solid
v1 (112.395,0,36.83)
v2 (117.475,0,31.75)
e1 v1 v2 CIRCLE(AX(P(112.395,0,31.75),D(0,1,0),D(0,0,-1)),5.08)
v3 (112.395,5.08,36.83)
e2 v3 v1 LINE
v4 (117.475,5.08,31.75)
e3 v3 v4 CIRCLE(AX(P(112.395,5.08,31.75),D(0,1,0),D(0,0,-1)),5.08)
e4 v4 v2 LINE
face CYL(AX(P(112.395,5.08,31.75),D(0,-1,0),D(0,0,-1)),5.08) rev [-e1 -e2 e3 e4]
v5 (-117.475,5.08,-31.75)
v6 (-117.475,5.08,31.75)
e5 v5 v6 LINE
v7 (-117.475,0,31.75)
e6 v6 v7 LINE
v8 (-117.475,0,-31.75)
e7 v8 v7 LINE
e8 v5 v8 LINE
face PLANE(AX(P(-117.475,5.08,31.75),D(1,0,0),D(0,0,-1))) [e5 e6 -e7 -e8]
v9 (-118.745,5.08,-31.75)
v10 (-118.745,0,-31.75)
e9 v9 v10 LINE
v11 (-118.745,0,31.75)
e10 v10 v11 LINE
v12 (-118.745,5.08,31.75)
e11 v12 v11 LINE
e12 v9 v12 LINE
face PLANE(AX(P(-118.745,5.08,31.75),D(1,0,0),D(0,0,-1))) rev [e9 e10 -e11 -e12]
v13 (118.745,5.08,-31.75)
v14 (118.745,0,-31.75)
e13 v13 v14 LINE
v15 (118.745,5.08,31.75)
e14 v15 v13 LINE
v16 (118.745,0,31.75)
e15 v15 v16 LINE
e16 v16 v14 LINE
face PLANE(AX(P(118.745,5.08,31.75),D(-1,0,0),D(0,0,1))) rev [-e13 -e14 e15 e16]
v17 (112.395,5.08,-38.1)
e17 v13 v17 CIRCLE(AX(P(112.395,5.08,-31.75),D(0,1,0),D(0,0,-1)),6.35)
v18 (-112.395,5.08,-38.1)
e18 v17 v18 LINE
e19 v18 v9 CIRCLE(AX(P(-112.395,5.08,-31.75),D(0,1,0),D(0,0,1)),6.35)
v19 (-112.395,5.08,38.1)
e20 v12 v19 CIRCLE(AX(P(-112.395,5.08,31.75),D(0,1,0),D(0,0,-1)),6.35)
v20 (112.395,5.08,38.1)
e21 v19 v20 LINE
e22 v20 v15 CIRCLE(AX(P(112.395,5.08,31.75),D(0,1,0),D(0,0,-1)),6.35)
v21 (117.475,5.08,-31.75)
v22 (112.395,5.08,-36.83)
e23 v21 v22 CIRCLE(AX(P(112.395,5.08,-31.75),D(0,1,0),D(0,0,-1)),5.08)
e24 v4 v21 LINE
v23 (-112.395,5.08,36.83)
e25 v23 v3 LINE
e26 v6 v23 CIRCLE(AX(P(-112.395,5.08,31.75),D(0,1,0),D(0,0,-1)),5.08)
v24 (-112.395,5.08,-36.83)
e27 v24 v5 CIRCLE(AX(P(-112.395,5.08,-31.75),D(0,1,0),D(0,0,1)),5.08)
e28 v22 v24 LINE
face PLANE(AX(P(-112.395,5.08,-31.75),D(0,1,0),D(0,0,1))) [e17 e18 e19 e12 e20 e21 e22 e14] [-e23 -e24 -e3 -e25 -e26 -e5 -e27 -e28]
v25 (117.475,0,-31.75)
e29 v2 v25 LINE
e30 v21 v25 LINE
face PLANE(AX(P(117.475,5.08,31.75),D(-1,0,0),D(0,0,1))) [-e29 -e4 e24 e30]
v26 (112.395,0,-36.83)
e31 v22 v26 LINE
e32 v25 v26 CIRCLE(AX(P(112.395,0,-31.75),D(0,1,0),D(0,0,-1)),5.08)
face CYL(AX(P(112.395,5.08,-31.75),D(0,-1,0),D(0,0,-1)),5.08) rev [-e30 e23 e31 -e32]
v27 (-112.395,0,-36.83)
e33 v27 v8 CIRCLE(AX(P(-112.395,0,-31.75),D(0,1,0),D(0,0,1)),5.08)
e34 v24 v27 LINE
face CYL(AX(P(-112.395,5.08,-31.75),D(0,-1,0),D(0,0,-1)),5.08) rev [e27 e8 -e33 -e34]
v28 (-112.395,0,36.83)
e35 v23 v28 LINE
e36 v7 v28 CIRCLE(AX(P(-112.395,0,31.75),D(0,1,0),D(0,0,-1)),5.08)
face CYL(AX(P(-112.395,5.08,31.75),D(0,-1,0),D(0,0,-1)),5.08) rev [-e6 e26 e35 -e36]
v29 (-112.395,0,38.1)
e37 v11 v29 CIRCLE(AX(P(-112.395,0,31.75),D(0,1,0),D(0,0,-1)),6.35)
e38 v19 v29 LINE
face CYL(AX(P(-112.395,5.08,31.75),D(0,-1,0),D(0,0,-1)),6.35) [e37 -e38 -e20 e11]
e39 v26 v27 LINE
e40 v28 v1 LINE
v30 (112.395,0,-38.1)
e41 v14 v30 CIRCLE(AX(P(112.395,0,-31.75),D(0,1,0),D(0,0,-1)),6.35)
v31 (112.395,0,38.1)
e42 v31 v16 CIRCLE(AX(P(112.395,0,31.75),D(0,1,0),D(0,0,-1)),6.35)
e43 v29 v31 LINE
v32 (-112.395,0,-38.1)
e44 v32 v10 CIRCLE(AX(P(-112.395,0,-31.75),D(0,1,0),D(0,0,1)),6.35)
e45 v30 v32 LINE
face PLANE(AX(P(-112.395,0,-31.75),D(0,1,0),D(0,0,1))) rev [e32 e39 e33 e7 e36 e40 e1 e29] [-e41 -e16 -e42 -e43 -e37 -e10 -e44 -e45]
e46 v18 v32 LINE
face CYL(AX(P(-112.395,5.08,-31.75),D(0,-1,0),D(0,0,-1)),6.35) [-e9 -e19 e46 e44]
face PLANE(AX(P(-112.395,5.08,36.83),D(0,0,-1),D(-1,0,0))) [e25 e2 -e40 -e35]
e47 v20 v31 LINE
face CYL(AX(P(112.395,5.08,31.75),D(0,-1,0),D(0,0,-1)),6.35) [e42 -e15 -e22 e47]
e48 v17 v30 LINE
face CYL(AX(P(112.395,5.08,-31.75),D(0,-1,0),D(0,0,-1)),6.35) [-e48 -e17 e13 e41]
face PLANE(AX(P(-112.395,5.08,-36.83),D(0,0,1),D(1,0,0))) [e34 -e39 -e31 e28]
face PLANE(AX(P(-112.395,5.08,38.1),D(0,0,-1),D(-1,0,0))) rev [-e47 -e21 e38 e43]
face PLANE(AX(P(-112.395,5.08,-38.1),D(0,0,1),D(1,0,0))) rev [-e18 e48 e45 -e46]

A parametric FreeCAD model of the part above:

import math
import FreeCAD as App
import Part
import Sketcher
from FreeCAD import Vector
Q = App.Units.Quantity

doc = App.newDocument("Part")
params = doc.addObject("Spreadsheet::Sheet", "Params")
for row, (alias, value) in enumerate([
    ("sketch1_radius", "0.2 in"),
    ("sketch1_radius2", "0.25 in"),
    ("sketch1_height", "2.5 in"),
    ("sketch1_width", "8.85 in"),
    ("pad1_length", "0.2 in"),
], start=1):
    params.set(f"A{row}", alias)
    params.set(f"B{row}", "=" + value)
    params.setAlias(f"B{row}", alias)

body = doc.addObject("PartDesign::Body", "Body")

sketch1 = body.newObject("Sketcher::SketchObject", "Sketch")
sketch1.AttachmentSupport = (doc.getObject("XZ_Plane"), [""])
sketch1.MapMode = "FlatFace"
sketch1.addGeometry(Part.LineSegment(Vector(112.395, -38.1, 0), Vector(-112.395, -38.1, 0)), False)
sketch1.addGeometry(Part.ArcOfCircle(Part.Circle(Vector(-112.395, -31.75, 0), Vector(0, 0, 1), 6.35), math.radians(180), math.radians(270)), False)
sketch1.addGeometry(Part.LineSegment(Vector(-118.745, -31.75, 0), Vector(-118.745, 31.75, 0)), False)
sketch1.addGeometry(Part.ArcOfCircle(Part.Circle(Vector(-112.395, 31.75, 0), Vector(0, 0, 1), 6.35), math.radians(90), math.radians(180)), False)
sketch1.addGeometry(Part.LineSegment(Vector(-112.395, 38.1, 0), Vector(112.395, 38.1, 0)), False)
sketch1.addGeometry(Part.ArcOfCircle(Part.Circle(Vector(112.395, 31.75, 0), Vector(0, 0, 1), 6.35), math.radians(0), math.radians(90)), False)
sketch1.addGeometry(Part.LineSegment(Vector(118.745, 31.75, 0), Vector(118.745, -31.75, 0)), False)
sketch1.addGeometry(Part.ArcOfCircle(Part.Circle(Vector(112.395, -31.75, 0), Vector(0, 0, 1), 6.35), math.radians(-90), math.radians(0)), False)
sketch1.addGeometry(Part.ArcOfCircle(Part.Circle(Vector(-112.395, 31.75, 0), Vector(0, 0, 1), 5.08), math.radians(90), math.radians(180)), False)
sketch1.addGeometry(Part.LineSegment(Vector(-117.475, 31.75, 0), Vector(-117.475, -31.75, 0)), False)
sketch1.addGeometry(Part.ArcOfCircle(Part.Circle(Vector(-112.395, -31.75, 0), Vector(0, 0, 1), 5.08), math.radians(-180), math.radians(-90)), False)
sketch1.addGeometry(Part.LineSegment(Vector(-112.395, -36.83, 0), Vector(112.395, -36.83, 0)), False)
sketch1.addGeometry(Part.ArcOfCircle(Part.Circle(Vector(112.395, -31.75, 0), Vector(0, 0, 1), 5.08), math.radians(-90), math.radians(0)), False)
sketch1.addGeometry(Part.LineSegment(Vector(117.475, -31.75, 0), Vector(117.475, 31.75, 0)), False)
sketch1.addGeometry(Part.ArcOfCircle(Part.Circle(Vector(112.395, 31.75, 0), Vector(0, 0, 1), 5.08), math.radians(0), math.radians(90)), False)
sketch1.addGeometry(Part.LineSegment(Vector(112.395, 36.83, 0), Vector(-112.395, 36.83, 0)), False)
sketch1.addConstraint(Sketcher.Constraint("Tangent", 0, 2, 1, 2))
sketch1.addConstraint(Sketcher.Constraint("Tangent", 1, 1, 2, 1))
sketch1.addConstraint(Sketcher.Constraint("Tangent", 2, 2, 3, 2))
sketch1.addConstraint(Sketcher.Constraint("Tangent", 3, 1, 4, 1))
sketch1.addConstraint(Sketcher.Constraint("Tangent", 4, 2, 5, 2))
sketch1.addConstraint(Sketcher.Constraint("Tangent", 5, 1, 6, 1))
sketch1.addConstraint(Sketcher.Constraint("Tangent", 6, 2, 7, 2))
sketch1.addConstraint(Sketcher.Constraint("Tangent", 7, 1, 0, 1))
sketch1.addConstraint(Sketcher.Constraint("Tangent", 8, 2, 9, 1))
sketch1.addConstraint(Sketcher.Constraint("Tangent", 9, 2, 10, 1))
sketch1.addConstraint(Sketcher.Constraint("Tangent", 10, 2, 11, 1))
sketch1.addConstraint(Sketcher.Constraint("Tangent", 11, 2, 12, 1))
sketch1.addConstraint(Sketcher.Constraint("Tangent", 12, 2, 13, 1))
sketch1.addConstraint(Sketcher.Constraint("Tangent", 13, 2, 14, 1))
sketch1.addConstraint(Sketcher.Constraint("Tangent", 14, 2, 15, 1))
sketch1.addConstraint(Sketcher.Constraint("Tangent", 15, 2, 8, 1))
sketch1.addConstraint(Sketcher.Constraint("Horizontal", 0))
sketch1.addConstraint(Sketcher.Constraint("Vertical", 2))
sketch1.addConstraint(Sketcher.Constraint("Horizontal", 4))
sketch1.addConstraint(Sketcher.Constraint("Vertical", 6))
sketch1.addConstraint(Sketcher.Constraint("Vertical", 9))
sketch1.addConstraint(Sketcher.Constraint("Horizontal", 11))
sketch1.addConstraint(Sketcher.Constraint("Vertical", 13))
sketch1.addConstraint(Sketcher.Constraint("Horizontal", 15))
sketch1.addConstraint(Sketcher.Constraint("Coincident", 8, 3, 3, 3))
sketch1.addConstraint(Sketcher.Constraint("Coincident", 10, 3, 1, 3))
sketch1.addConstraint(Sketcher.Constraint("Coincident", 12, 3, 7, 3))
sketch1.addConstraint(Sketcher.Constraint("Equal", 1, 3))
sketch1.addConstraint(Sketcher.Constraint("Equal", 3, 5))
sketch1.addConstraint(Sketcher.Constraint("Equal", 5, 7))
sketch1.addConstraint(Sketcher.Constraint("Equal", 12, 14))
sketch1.addConstraint(Sketcher.Constraint("Symmetric", 1, 3, 5, 3, -1, 1))
sketch1.addConstraint(Sketcher.Constraint("Radius", 8, Q("0.2 in")))
sketch1.addConstraint(Sketcher.Constraint("Radius", 1, Q("0.25 in")))
sketch1.addConstraint(Sketcher.Constraint("DistanceY", 2, 1, 2, 2, Q("2.5 in")))
sketch1.addConstraint(Sketcher.Constraint("DistanceX", 0, 2, 0, 1, Q("8.85 in")))
sketch1.setExpression("Constraints[32]", "Params.sketch1_radius")
sketch1.setExpression("Constraints[33]", "Params.sketch1_radius2")
sketch1.setExpression("Constraints[34]", "Params.sketch1_height")
sketch1.setExpression("Constraints[35]", "Params.sketch1_width")
pad1 = body.newObject("PartDesign::Pad", "Pad")
pad1.Profile = sketch1
pad1.setExpression("Length", "Params.pad1_length")
pad1.Reversed = True

doc.recompute()
